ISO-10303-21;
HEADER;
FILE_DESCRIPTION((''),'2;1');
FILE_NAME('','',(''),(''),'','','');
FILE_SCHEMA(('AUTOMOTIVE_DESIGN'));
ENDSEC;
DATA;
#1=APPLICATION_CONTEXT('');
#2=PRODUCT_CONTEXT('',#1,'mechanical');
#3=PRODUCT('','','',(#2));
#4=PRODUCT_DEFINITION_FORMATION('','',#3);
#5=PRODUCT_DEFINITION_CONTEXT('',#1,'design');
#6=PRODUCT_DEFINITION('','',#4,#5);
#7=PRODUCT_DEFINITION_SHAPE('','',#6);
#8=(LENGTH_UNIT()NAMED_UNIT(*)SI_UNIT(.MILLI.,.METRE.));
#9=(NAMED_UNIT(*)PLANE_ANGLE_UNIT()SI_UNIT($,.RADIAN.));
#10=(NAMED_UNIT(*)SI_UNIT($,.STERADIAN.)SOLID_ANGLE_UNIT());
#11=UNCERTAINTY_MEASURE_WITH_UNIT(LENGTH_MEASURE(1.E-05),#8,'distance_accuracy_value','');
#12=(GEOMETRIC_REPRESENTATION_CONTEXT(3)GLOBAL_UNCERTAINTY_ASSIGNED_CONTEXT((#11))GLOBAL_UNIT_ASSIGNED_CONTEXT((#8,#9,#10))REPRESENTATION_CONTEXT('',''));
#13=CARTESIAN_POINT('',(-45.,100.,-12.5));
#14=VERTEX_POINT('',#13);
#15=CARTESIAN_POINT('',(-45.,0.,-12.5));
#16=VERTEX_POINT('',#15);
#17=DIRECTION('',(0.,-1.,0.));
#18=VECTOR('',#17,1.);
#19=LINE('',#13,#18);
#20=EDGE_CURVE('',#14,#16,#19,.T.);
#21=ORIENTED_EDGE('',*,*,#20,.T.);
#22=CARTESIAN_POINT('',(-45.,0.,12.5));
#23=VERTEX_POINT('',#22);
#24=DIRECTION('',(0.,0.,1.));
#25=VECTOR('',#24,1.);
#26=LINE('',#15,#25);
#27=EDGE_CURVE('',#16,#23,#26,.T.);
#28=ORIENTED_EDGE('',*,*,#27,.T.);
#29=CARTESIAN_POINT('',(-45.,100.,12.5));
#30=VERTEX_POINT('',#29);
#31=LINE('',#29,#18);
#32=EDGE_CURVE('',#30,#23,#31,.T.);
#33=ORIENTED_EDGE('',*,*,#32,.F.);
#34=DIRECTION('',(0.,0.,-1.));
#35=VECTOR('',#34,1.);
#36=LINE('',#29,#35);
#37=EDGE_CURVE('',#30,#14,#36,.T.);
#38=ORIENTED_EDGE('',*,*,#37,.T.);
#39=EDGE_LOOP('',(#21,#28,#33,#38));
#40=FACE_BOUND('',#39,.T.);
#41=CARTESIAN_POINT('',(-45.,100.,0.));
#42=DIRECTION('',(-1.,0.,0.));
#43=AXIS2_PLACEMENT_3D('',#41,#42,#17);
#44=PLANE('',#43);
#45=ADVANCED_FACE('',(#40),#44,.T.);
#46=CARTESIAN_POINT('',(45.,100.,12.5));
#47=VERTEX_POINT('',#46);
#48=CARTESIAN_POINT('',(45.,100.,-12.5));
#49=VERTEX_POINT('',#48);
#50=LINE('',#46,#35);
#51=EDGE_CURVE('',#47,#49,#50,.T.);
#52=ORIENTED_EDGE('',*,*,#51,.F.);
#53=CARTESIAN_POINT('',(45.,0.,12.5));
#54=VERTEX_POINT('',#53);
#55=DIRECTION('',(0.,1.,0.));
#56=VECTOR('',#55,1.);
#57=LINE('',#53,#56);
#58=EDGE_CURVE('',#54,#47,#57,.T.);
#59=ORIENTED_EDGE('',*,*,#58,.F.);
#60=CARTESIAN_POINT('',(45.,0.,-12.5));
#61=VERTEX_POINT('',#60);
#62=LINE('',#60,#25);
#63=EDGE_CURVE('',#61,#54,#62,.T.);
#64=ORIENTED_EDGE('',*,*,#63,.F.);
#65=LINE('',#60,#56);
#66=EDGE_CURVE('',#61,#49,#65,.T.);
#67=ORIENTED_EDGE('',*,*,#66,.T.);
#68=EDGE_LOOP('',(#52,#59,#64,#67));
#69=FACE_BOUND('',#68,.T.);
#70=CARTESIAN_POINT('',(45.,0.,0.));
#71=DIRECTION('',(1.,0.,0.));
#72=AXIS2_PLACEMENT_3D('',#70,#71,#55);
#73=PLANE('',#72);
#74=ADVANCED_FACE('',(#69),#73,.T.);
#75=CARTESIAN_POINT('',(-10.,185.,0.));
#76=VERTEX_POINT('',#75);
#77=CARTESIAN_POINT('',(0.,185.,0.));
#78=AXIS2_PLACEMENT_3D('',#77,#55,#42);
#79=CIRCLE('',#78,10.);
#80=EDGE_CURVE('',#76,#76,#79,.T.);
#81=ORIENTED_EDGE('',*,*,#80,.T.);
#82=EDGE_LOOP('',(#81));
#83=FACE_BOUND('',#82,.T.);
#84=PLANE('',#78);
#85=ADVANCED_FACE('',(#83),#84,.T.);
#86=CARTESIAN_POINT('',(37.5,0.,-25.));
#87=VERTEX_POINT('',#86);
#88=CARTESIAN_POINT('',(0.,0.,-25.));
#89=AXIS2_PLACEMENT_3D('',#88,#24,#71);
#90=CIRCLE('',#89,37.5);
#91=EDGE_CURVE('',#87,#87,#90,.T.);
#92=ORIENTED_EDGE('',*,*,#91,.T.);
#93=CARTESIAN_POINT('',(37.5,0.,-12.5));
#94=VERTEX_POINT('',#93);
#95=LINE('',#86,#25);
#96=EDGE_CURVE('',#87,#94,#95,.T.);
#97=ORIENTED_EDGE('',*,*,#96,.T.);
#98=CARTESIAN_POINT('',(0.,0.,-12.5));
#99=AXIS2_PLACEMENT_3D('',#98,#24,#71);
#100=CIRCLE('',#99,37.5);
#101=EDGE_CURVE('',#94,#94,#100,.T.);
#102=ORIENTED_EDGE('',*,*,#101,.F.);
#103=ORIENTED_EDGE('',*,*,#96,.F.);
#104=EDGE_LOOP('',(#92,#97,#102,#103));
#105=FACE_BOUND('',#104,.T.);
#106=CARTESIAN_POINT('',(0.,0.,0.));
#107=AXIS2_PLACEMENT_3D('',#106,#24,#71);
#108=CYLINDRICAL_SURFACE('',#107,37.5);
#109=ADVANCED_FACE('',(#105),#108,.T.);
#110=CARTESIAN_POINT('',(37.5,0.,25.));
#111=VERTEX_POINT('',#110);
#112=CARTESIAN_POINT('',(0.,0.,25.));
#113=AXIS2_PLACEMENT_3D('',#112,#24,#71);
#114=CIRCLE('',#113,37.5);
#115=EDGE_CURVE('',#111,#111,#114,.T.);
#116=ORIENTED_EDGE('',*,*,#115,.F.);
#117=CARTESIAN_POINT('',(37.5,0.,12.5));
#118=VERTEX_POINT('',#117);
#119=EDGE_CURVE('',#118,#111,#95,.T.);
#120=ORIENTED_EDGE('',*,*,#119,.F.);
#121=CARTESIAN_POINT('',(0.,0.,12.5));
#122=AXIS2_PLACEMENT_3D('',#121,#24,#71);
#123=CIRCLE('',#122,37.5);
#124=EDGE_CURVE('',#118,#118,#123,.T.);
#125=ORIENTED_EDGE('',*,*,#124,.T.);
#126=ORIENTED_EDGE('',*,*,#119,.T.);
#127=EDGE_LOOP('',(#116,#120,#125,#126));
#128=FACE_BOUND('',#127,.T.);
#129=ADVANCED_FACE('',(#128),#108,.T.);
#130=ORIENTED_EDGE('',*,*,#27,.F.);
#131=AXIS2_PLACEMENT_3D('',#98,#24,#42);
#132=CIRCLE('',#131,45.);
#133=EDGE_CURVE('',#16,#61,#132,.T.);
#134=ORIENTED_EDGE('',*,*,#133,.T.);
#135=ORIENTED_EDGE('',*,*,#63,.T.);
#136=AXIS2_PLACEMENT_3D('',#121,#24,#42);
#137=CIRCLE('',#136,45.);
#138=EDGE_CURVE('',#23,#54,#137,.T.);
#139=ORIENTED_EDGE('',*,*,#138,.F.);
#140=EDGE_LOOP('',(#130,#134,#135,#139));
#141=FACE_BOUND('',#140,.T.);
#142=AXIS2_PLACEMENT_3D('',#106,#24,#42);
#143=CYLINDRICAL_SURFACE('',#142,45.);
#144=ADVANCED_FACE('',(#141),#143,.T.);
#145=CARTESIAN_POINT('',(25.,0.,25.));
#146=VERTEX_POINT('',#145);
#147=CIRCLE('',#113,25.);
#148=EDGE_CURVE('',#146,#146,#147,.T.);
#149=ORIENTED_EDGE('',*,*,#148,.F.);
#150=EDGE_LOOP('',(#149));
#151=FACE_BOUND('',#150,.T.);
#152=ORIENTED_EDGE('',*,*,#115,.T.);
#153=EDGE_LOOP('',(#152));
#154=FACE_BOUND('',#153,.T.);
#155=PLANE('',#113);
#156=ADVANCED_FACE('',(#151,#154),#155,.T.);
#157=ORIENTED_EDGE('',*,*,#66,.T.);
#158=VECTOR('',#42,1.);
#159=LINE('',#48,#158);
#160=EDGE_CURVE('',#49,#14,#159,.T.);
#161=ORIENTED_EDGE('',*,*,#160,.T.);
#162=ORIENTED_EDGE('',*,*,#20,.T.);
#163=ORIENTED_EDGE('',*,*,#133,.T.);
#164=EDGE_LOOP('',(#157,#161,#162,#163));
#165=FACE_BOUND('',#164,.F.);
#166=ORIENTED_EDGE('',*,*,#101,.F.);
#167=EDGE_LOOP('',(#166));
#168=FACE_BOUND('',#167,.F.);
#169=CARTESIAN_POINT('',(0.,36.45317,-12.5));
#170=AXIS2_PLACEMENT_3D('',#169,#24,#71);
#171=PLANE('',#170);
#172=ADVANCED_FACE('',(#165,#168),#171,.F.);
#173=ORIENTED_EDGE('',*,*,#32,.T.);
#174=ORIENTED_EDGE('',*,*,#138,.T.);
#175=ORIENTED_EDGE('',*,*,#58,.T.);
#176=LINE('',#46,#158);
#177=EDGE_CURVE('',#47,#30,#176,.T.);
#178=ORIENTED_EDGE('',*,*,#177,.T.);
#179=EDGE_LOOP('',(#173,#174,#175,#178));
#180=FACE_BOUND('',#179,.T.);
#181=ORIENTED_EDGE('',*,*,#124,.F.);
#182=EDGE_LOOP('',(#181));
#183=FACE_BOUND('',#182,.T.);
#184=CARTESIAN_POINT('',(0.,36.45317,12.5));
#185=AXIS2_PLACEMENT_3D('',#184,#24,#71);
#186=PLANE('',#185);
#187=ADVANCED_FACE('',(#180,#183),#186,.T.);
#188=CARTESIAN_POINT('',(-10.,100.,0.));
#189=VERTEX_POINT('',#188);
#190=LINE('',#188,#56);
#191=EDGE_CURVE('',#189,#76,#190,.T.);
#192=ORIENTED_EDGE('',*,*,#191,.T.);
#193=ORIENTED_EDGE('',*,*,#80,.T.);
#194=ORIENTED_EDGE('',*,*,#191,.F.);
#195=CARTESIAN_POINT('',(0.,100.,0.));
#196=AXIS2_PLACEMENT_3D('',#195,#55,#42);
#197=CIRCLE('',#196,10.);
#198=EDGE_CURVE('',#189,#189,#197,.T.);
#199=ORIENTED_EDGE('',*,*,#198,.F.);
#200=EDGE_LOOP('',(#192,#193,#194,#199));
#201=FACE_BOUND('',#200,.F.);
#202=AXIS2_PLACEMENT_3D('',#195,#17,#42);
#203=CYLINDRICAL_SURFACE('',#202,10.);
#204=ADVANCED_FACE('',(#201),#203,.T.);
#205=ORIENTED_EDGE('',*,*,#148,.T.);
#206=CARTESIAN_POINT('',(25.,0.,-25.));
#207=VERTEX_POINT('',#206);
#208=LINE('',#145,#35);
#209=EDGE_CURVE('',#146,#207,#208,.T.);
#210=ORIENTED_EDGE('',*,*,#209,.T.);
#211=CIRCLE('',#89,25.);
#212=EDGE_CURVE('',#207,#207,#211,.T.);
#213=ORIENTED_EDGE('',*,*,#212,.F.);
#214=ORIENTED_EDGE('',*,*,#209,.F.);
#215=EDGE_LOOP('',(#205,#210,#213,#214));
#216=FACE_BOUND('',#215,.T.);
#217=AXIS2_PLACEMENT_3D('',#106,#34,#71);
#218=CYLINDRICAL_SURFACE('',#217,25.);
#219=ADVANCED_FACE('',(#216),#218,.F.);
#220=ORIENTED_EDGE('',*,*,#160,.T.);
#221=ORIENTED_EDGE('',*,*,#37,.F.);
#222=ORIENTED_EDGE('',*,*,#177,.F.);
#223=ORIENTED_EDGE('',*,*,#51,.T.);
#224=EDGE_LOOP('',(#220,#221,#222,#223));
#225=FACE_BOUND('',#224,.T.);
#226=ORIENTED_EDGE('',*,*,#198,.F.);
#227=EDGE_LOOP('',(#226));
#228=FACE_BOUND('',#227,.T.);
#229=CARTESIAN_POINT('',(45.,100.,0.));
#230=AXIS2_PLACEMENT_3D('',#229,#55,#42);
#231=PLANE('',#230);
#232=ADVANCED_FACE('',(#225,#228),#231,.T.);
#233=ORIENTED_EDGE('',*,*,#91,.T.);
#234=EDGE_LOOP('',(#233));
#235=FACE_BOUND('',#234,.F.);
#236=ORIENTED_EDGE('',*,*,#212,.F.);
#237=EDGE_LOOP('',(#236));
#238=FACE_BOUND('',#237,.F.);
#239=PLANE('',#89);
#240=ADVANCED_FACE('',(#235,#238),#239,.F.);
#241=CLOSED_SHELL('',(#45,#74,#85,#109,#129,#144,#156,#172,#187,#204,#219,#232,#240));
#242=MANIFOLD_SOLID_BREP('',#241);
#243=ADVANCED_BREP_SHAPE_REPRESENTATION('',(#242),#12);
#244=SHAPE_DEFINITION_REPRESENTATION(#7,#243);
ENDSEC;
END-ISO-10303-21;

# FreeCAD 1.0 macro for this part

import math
import FreeCAD as App
import Part
import Sketcher

V = App.Vector

doc = App.newDocument("Part")
params = doc.addObject("Spreadsheet::Sheet", "Params")
for row, (alias, value) in enumerate([
    ("sketch1_diameter", "75 mm"),
    ("sketch1_diameter2", "50 mm"),
    ("pad1_length", "50 mm"),
    ("sketch2_diameter", "75 mm"),
    ("sketch2_radius", "45 mm"),
    ("sketch2_height", "100 mm"),
    ("pad2_length", "25 mm"),
    ("sketch3_diameter", "20 mm"),
    ("pad3_length", "85 mm"),
], start=1):
    params.set(f"A{row}", alias)
    params.set(f"B{row}", "=" + value)
    params.setAlias(f"B{row}", alias)

body = doc.addObject("PartDesign::Body", "Body")

# Sketch on XY plane
sketch1 = body.newObject("Sketcher::SketchObject", "Sketch")
sketch1.AttachmentSupport = (doc.getObject("XY_Plane"), [""])
sketch1.MapMode = "FlatFace"
sketch1.addGeometry([
    Part.Circle(V(0, 0, 0), V(0, 0, 1), 37.5),
    Part.Circle(V(0, 0, 0), V(0, 0, 1), 25),
], False)
sketch1.addConstraint([
    Sketcher.Constraint("Coincident", 0, 3, -1, 1),
    Sketcher.Constraint("Coincident", 1, 3, -1, 1),
    Sketcher.Constraint("Diameter", 0, 75.0),
    Sketcher.Constraint("Diameter", 1, 50.0),
])
sketch1.setExpression("Constraints[2]", "Params.sketch1_diameter")
sketch1.setExpression("Constraints[3]", "Params.sketch1_diameter2")
pad1 = body.newObject("PartDesign::Pad", "Pad")
pad1.Profile = sketch1
pad1.setExpression("Length", "Params.pad1_length")
pad1.Midplane = True

# Sketch on XY plane
sketch2 = body.newObject("Sketcher::SketchObject", "Sketch001")
sketch2.AttachmentSupport = (doc.getObject("XY_Plane"), [""])
sketch2.MapMode = "FlatFace"
sketch2.addGeometry([
    Part.LineSegment(V(-45, 100, 0), V(-45, 0, 0)),  # 0
    Part.ArcOfCircle(Part.Circle(V(0, 0, 0), V(0, 0, 1), 45), math.radians(180), math.radians(360)),  # 1
    Part.LineSegment(V(45, 0, 0), V(45, 100, 0)),  # 2
    Part.LineSegment(V(45, 100, 0), V(-45, 100, 0)),  # 3
    Part.Circle(V(0, 0, 0), V(0, 0, 1), 37.5),  # 4
], False)
sketch2.addConstraint([
    Sketcher.Constraint("Tangent", 0, 2, 1, 1),
    Sketcher.Constraint("Tangent", 1, 2, 2, 1),
    Sketcher.Constraint("Coincident", 2, 2, 3, 1),
    Sketcher.Constraint("Coincident", 3, 2, 0, 1),
    Sketcher.Constraint("Vertical", 0),
    Sketcher.Constraint("Vertical", 2),
    Sketcher.Constraint("Horizontal", 3),
    Sketcher.Constraint("Coincident", 1, 3, -1, 1),
    Sketcher.Constraint("Coincident", 4, 3, -1, 1),
    Sketcher.Constraint("Diameter", 4, 75.0),
    Sketcher.Constraint("Radius", 1, 45.0),
    Sketcher.Constraint("DistanceY", 0, 2, 0, 1, 100.0),
])
sketch2.setExpression("Constraints[9]", "Params.sketch2_diameter")
sketch2.setExpression("Constraints[10]", "Params.sketch2_radius")
sketch2.setExpression("Constraints[11]", "Params.sketch2_height")
pad2 = body.newObject("PartDesign::Pad", "Pad001")
pad2.Profile = sketch2
pad2.setExpression("Length", "Params.pad2_length")
pad2.Midplane = True

# Sketch on XZ plane
sketch3 = body.newObject("Sketcher::SketchObject", "Sketch002")
sketch3.AttachmentSupport = (doc.getObject("XZ_Plane"), [""])
sketch3.MapMode = "FlatFace"
sketch3.AttachmentOffset = App.Placement(V(0, 0, -100), App.Rotation())
sketch3.addGeometry(Part.Circle(V(0, 0, 0), V(0, 0, 1), 10), False)
sketch3.addConstraint([
    Sketcher.Constraint("Coincident", 0, 3, -1, 1),
    Sketcher.Constraint("Diameter", 0, 20.0),
])
sketch3.setExpression("Constraints[1]", "Params.sketch3_diameter")
pad3 = body.newObject("PartDesign::Pad", "Pad002")
pad3.Profile = sketch3
pad3.setExpression("Length", "Params.pad3_length")
pad3.Reversed = True

doc.recompute()
